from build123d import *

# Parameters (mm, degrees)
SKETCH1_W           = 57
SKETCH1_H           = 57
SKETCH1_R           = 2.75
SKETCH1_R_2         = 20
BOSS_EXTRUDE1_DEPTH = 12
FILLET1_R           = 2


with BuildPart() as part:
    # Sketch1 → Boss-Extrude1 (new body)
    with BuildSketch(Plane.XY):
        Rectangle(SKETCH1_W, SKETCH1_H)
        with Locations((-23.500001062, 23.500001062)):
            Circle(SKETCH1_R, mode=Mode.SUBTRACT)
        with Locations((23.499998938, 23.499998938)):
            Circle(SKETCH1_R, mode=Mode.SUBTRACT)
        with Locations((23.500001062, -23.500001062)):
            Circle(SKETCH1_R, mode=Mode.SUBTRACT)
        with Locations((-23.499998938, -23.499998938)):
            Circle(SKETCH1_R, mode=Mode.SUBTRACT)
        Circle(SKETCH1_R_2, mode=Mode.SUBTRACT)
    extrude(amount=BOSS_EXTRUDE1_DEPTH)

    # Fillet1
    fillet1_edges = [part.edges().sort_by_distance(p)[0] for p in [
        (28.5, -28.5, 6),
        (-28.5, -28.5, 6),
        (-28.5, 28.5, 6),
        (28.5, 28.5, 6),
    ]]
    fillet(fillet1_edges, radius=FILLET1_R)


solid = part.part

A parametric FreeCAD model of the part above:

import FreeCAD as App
import Part
import Sketcher

V = App.Vector


def edges_at(feature, points):
    """Names of the edges that pass closest to the given points."""
    edges = feature.Shape.Edges
    near = lambda p: min(range(len(edges)), key=lambda i: edges[i].distToShape(Part.Vertex(*p))[0])
    return sorted({f"Edge{near(p) + 1}" for p in points})


def add_polygon(sketch, points):
    """Adds a closed chain of lines whose ends are joined by coincident constraints."""
    first, n = sketch.GeometryCount, len(points)
    for a, b in zip(points, points[1:] + points[:1]):
        sketch.addGeometry(Part.LineSegment(App.Vector(*a, 0), App.Vector(*b, 0)), False)
    for i in range(n):
        sketch.addConstraint(Sketcher.Constraint("Coincident", first + i, 2, first + (i + 1) % n, 1))

doc = App.newDocument("Part")
body = doc.addObject("PartDesign::Body", "Body")

sketch1 = doc.addObject("Sketcher::SketchObject", "Sketch")
body.addObject(sketch1)
sketch1.AttachmentSupport = (doc.XY_Plane, [""])
sketch1.MapMode = "FlatFace"
add_polygon(sketch1, [(-28.5, 28.5), (-28.5, -28.5), (28.5, -28.5), (28.5, 28.5)])
sketch1.addGeometry(Part.Circle(V(-23.5, -23.5, 0), V(0, 0, 1), 2.8), False)
sketch1.addGeometry(Part.Circle(V(0, 0, 0), V(0, 0, 1), 20), False)
sketch1.addGeometry(Part.Circle(V(23.5, -23.5, 0), V(0, 0, 1), 2.8), False)
sketch1.addGeometry(Part.Circle(V(-23.5, 23.5, 0), V(0, 0, 1), 2.8), False)
sketch1.addGeometry(Part.Circle(V(23.5, 23.5, 0), V(0, 0, 1), 2.8), False)
sketch1.addConstraint([
    Sketcher.Constraint("Vertical", 0),
    Sketcher.Constraint("Horizontal", 1),
    Sketcher.Constraint("Vertical", 2),
    Sketcher.Constraint("Horizontal", 3),
    Sketcher.Constraint("Coincident", 5, 3, -1, 1),
    Sketcher.Constraint("Equal", 4, 6),
    Sketcher.Constraint("Equal", 6, 7),
    Sketcher.Constraint("Equal", 7, 8),
    Sketcher.Constraint("Symmetric", 6, 3, 7, 3, -1, 1),
    Sketcher.Constraint("Symmetric", 4, 3, 8, 3, -1, 1),
    Sketcher.Constraint("Symmetric", 0, 2, 2, 2, -1, 1),
    Sketcher.Constraint("Symmetric", 4, 3, 6, 3, -2),
    Sketcher.Constraint("Equal", 3, 0),
    Sketcher.Constraint("Diameter", 5, 40.0),
    Sketcher.Constraint("Diameter", 4, 5.5),
    Sketcher.Constraint("DistanceX", 1, 1, 1, 2, 57.0),
    Sketcher.Constraint("DistanceX", 4, 3, 6, 3, 47.0),
    Sketcher.Constraint("DistanceY", 4, 3, 7, 3, 47.0),
])
pad1 = doc.addObject("PartDesign::Pad", "Pad")
body.addObject(pad1)
pad1.Profile = sketch1
pad1.Length = 12
doc.recompute()

fillet = doc.addObject("PartDesign::Fillet", "Fillet")
body.addObject(fillet)
fillet.Base = (pad1, edges_at(pad1, [
    (28.5, -28.5, 6),
    (-28.5, -28.5, 6),
    (-28.5, 28.5, 6),
    (28.5, 28.5, 6),
]))
fillet.Radius = 2

doc.recompute()
